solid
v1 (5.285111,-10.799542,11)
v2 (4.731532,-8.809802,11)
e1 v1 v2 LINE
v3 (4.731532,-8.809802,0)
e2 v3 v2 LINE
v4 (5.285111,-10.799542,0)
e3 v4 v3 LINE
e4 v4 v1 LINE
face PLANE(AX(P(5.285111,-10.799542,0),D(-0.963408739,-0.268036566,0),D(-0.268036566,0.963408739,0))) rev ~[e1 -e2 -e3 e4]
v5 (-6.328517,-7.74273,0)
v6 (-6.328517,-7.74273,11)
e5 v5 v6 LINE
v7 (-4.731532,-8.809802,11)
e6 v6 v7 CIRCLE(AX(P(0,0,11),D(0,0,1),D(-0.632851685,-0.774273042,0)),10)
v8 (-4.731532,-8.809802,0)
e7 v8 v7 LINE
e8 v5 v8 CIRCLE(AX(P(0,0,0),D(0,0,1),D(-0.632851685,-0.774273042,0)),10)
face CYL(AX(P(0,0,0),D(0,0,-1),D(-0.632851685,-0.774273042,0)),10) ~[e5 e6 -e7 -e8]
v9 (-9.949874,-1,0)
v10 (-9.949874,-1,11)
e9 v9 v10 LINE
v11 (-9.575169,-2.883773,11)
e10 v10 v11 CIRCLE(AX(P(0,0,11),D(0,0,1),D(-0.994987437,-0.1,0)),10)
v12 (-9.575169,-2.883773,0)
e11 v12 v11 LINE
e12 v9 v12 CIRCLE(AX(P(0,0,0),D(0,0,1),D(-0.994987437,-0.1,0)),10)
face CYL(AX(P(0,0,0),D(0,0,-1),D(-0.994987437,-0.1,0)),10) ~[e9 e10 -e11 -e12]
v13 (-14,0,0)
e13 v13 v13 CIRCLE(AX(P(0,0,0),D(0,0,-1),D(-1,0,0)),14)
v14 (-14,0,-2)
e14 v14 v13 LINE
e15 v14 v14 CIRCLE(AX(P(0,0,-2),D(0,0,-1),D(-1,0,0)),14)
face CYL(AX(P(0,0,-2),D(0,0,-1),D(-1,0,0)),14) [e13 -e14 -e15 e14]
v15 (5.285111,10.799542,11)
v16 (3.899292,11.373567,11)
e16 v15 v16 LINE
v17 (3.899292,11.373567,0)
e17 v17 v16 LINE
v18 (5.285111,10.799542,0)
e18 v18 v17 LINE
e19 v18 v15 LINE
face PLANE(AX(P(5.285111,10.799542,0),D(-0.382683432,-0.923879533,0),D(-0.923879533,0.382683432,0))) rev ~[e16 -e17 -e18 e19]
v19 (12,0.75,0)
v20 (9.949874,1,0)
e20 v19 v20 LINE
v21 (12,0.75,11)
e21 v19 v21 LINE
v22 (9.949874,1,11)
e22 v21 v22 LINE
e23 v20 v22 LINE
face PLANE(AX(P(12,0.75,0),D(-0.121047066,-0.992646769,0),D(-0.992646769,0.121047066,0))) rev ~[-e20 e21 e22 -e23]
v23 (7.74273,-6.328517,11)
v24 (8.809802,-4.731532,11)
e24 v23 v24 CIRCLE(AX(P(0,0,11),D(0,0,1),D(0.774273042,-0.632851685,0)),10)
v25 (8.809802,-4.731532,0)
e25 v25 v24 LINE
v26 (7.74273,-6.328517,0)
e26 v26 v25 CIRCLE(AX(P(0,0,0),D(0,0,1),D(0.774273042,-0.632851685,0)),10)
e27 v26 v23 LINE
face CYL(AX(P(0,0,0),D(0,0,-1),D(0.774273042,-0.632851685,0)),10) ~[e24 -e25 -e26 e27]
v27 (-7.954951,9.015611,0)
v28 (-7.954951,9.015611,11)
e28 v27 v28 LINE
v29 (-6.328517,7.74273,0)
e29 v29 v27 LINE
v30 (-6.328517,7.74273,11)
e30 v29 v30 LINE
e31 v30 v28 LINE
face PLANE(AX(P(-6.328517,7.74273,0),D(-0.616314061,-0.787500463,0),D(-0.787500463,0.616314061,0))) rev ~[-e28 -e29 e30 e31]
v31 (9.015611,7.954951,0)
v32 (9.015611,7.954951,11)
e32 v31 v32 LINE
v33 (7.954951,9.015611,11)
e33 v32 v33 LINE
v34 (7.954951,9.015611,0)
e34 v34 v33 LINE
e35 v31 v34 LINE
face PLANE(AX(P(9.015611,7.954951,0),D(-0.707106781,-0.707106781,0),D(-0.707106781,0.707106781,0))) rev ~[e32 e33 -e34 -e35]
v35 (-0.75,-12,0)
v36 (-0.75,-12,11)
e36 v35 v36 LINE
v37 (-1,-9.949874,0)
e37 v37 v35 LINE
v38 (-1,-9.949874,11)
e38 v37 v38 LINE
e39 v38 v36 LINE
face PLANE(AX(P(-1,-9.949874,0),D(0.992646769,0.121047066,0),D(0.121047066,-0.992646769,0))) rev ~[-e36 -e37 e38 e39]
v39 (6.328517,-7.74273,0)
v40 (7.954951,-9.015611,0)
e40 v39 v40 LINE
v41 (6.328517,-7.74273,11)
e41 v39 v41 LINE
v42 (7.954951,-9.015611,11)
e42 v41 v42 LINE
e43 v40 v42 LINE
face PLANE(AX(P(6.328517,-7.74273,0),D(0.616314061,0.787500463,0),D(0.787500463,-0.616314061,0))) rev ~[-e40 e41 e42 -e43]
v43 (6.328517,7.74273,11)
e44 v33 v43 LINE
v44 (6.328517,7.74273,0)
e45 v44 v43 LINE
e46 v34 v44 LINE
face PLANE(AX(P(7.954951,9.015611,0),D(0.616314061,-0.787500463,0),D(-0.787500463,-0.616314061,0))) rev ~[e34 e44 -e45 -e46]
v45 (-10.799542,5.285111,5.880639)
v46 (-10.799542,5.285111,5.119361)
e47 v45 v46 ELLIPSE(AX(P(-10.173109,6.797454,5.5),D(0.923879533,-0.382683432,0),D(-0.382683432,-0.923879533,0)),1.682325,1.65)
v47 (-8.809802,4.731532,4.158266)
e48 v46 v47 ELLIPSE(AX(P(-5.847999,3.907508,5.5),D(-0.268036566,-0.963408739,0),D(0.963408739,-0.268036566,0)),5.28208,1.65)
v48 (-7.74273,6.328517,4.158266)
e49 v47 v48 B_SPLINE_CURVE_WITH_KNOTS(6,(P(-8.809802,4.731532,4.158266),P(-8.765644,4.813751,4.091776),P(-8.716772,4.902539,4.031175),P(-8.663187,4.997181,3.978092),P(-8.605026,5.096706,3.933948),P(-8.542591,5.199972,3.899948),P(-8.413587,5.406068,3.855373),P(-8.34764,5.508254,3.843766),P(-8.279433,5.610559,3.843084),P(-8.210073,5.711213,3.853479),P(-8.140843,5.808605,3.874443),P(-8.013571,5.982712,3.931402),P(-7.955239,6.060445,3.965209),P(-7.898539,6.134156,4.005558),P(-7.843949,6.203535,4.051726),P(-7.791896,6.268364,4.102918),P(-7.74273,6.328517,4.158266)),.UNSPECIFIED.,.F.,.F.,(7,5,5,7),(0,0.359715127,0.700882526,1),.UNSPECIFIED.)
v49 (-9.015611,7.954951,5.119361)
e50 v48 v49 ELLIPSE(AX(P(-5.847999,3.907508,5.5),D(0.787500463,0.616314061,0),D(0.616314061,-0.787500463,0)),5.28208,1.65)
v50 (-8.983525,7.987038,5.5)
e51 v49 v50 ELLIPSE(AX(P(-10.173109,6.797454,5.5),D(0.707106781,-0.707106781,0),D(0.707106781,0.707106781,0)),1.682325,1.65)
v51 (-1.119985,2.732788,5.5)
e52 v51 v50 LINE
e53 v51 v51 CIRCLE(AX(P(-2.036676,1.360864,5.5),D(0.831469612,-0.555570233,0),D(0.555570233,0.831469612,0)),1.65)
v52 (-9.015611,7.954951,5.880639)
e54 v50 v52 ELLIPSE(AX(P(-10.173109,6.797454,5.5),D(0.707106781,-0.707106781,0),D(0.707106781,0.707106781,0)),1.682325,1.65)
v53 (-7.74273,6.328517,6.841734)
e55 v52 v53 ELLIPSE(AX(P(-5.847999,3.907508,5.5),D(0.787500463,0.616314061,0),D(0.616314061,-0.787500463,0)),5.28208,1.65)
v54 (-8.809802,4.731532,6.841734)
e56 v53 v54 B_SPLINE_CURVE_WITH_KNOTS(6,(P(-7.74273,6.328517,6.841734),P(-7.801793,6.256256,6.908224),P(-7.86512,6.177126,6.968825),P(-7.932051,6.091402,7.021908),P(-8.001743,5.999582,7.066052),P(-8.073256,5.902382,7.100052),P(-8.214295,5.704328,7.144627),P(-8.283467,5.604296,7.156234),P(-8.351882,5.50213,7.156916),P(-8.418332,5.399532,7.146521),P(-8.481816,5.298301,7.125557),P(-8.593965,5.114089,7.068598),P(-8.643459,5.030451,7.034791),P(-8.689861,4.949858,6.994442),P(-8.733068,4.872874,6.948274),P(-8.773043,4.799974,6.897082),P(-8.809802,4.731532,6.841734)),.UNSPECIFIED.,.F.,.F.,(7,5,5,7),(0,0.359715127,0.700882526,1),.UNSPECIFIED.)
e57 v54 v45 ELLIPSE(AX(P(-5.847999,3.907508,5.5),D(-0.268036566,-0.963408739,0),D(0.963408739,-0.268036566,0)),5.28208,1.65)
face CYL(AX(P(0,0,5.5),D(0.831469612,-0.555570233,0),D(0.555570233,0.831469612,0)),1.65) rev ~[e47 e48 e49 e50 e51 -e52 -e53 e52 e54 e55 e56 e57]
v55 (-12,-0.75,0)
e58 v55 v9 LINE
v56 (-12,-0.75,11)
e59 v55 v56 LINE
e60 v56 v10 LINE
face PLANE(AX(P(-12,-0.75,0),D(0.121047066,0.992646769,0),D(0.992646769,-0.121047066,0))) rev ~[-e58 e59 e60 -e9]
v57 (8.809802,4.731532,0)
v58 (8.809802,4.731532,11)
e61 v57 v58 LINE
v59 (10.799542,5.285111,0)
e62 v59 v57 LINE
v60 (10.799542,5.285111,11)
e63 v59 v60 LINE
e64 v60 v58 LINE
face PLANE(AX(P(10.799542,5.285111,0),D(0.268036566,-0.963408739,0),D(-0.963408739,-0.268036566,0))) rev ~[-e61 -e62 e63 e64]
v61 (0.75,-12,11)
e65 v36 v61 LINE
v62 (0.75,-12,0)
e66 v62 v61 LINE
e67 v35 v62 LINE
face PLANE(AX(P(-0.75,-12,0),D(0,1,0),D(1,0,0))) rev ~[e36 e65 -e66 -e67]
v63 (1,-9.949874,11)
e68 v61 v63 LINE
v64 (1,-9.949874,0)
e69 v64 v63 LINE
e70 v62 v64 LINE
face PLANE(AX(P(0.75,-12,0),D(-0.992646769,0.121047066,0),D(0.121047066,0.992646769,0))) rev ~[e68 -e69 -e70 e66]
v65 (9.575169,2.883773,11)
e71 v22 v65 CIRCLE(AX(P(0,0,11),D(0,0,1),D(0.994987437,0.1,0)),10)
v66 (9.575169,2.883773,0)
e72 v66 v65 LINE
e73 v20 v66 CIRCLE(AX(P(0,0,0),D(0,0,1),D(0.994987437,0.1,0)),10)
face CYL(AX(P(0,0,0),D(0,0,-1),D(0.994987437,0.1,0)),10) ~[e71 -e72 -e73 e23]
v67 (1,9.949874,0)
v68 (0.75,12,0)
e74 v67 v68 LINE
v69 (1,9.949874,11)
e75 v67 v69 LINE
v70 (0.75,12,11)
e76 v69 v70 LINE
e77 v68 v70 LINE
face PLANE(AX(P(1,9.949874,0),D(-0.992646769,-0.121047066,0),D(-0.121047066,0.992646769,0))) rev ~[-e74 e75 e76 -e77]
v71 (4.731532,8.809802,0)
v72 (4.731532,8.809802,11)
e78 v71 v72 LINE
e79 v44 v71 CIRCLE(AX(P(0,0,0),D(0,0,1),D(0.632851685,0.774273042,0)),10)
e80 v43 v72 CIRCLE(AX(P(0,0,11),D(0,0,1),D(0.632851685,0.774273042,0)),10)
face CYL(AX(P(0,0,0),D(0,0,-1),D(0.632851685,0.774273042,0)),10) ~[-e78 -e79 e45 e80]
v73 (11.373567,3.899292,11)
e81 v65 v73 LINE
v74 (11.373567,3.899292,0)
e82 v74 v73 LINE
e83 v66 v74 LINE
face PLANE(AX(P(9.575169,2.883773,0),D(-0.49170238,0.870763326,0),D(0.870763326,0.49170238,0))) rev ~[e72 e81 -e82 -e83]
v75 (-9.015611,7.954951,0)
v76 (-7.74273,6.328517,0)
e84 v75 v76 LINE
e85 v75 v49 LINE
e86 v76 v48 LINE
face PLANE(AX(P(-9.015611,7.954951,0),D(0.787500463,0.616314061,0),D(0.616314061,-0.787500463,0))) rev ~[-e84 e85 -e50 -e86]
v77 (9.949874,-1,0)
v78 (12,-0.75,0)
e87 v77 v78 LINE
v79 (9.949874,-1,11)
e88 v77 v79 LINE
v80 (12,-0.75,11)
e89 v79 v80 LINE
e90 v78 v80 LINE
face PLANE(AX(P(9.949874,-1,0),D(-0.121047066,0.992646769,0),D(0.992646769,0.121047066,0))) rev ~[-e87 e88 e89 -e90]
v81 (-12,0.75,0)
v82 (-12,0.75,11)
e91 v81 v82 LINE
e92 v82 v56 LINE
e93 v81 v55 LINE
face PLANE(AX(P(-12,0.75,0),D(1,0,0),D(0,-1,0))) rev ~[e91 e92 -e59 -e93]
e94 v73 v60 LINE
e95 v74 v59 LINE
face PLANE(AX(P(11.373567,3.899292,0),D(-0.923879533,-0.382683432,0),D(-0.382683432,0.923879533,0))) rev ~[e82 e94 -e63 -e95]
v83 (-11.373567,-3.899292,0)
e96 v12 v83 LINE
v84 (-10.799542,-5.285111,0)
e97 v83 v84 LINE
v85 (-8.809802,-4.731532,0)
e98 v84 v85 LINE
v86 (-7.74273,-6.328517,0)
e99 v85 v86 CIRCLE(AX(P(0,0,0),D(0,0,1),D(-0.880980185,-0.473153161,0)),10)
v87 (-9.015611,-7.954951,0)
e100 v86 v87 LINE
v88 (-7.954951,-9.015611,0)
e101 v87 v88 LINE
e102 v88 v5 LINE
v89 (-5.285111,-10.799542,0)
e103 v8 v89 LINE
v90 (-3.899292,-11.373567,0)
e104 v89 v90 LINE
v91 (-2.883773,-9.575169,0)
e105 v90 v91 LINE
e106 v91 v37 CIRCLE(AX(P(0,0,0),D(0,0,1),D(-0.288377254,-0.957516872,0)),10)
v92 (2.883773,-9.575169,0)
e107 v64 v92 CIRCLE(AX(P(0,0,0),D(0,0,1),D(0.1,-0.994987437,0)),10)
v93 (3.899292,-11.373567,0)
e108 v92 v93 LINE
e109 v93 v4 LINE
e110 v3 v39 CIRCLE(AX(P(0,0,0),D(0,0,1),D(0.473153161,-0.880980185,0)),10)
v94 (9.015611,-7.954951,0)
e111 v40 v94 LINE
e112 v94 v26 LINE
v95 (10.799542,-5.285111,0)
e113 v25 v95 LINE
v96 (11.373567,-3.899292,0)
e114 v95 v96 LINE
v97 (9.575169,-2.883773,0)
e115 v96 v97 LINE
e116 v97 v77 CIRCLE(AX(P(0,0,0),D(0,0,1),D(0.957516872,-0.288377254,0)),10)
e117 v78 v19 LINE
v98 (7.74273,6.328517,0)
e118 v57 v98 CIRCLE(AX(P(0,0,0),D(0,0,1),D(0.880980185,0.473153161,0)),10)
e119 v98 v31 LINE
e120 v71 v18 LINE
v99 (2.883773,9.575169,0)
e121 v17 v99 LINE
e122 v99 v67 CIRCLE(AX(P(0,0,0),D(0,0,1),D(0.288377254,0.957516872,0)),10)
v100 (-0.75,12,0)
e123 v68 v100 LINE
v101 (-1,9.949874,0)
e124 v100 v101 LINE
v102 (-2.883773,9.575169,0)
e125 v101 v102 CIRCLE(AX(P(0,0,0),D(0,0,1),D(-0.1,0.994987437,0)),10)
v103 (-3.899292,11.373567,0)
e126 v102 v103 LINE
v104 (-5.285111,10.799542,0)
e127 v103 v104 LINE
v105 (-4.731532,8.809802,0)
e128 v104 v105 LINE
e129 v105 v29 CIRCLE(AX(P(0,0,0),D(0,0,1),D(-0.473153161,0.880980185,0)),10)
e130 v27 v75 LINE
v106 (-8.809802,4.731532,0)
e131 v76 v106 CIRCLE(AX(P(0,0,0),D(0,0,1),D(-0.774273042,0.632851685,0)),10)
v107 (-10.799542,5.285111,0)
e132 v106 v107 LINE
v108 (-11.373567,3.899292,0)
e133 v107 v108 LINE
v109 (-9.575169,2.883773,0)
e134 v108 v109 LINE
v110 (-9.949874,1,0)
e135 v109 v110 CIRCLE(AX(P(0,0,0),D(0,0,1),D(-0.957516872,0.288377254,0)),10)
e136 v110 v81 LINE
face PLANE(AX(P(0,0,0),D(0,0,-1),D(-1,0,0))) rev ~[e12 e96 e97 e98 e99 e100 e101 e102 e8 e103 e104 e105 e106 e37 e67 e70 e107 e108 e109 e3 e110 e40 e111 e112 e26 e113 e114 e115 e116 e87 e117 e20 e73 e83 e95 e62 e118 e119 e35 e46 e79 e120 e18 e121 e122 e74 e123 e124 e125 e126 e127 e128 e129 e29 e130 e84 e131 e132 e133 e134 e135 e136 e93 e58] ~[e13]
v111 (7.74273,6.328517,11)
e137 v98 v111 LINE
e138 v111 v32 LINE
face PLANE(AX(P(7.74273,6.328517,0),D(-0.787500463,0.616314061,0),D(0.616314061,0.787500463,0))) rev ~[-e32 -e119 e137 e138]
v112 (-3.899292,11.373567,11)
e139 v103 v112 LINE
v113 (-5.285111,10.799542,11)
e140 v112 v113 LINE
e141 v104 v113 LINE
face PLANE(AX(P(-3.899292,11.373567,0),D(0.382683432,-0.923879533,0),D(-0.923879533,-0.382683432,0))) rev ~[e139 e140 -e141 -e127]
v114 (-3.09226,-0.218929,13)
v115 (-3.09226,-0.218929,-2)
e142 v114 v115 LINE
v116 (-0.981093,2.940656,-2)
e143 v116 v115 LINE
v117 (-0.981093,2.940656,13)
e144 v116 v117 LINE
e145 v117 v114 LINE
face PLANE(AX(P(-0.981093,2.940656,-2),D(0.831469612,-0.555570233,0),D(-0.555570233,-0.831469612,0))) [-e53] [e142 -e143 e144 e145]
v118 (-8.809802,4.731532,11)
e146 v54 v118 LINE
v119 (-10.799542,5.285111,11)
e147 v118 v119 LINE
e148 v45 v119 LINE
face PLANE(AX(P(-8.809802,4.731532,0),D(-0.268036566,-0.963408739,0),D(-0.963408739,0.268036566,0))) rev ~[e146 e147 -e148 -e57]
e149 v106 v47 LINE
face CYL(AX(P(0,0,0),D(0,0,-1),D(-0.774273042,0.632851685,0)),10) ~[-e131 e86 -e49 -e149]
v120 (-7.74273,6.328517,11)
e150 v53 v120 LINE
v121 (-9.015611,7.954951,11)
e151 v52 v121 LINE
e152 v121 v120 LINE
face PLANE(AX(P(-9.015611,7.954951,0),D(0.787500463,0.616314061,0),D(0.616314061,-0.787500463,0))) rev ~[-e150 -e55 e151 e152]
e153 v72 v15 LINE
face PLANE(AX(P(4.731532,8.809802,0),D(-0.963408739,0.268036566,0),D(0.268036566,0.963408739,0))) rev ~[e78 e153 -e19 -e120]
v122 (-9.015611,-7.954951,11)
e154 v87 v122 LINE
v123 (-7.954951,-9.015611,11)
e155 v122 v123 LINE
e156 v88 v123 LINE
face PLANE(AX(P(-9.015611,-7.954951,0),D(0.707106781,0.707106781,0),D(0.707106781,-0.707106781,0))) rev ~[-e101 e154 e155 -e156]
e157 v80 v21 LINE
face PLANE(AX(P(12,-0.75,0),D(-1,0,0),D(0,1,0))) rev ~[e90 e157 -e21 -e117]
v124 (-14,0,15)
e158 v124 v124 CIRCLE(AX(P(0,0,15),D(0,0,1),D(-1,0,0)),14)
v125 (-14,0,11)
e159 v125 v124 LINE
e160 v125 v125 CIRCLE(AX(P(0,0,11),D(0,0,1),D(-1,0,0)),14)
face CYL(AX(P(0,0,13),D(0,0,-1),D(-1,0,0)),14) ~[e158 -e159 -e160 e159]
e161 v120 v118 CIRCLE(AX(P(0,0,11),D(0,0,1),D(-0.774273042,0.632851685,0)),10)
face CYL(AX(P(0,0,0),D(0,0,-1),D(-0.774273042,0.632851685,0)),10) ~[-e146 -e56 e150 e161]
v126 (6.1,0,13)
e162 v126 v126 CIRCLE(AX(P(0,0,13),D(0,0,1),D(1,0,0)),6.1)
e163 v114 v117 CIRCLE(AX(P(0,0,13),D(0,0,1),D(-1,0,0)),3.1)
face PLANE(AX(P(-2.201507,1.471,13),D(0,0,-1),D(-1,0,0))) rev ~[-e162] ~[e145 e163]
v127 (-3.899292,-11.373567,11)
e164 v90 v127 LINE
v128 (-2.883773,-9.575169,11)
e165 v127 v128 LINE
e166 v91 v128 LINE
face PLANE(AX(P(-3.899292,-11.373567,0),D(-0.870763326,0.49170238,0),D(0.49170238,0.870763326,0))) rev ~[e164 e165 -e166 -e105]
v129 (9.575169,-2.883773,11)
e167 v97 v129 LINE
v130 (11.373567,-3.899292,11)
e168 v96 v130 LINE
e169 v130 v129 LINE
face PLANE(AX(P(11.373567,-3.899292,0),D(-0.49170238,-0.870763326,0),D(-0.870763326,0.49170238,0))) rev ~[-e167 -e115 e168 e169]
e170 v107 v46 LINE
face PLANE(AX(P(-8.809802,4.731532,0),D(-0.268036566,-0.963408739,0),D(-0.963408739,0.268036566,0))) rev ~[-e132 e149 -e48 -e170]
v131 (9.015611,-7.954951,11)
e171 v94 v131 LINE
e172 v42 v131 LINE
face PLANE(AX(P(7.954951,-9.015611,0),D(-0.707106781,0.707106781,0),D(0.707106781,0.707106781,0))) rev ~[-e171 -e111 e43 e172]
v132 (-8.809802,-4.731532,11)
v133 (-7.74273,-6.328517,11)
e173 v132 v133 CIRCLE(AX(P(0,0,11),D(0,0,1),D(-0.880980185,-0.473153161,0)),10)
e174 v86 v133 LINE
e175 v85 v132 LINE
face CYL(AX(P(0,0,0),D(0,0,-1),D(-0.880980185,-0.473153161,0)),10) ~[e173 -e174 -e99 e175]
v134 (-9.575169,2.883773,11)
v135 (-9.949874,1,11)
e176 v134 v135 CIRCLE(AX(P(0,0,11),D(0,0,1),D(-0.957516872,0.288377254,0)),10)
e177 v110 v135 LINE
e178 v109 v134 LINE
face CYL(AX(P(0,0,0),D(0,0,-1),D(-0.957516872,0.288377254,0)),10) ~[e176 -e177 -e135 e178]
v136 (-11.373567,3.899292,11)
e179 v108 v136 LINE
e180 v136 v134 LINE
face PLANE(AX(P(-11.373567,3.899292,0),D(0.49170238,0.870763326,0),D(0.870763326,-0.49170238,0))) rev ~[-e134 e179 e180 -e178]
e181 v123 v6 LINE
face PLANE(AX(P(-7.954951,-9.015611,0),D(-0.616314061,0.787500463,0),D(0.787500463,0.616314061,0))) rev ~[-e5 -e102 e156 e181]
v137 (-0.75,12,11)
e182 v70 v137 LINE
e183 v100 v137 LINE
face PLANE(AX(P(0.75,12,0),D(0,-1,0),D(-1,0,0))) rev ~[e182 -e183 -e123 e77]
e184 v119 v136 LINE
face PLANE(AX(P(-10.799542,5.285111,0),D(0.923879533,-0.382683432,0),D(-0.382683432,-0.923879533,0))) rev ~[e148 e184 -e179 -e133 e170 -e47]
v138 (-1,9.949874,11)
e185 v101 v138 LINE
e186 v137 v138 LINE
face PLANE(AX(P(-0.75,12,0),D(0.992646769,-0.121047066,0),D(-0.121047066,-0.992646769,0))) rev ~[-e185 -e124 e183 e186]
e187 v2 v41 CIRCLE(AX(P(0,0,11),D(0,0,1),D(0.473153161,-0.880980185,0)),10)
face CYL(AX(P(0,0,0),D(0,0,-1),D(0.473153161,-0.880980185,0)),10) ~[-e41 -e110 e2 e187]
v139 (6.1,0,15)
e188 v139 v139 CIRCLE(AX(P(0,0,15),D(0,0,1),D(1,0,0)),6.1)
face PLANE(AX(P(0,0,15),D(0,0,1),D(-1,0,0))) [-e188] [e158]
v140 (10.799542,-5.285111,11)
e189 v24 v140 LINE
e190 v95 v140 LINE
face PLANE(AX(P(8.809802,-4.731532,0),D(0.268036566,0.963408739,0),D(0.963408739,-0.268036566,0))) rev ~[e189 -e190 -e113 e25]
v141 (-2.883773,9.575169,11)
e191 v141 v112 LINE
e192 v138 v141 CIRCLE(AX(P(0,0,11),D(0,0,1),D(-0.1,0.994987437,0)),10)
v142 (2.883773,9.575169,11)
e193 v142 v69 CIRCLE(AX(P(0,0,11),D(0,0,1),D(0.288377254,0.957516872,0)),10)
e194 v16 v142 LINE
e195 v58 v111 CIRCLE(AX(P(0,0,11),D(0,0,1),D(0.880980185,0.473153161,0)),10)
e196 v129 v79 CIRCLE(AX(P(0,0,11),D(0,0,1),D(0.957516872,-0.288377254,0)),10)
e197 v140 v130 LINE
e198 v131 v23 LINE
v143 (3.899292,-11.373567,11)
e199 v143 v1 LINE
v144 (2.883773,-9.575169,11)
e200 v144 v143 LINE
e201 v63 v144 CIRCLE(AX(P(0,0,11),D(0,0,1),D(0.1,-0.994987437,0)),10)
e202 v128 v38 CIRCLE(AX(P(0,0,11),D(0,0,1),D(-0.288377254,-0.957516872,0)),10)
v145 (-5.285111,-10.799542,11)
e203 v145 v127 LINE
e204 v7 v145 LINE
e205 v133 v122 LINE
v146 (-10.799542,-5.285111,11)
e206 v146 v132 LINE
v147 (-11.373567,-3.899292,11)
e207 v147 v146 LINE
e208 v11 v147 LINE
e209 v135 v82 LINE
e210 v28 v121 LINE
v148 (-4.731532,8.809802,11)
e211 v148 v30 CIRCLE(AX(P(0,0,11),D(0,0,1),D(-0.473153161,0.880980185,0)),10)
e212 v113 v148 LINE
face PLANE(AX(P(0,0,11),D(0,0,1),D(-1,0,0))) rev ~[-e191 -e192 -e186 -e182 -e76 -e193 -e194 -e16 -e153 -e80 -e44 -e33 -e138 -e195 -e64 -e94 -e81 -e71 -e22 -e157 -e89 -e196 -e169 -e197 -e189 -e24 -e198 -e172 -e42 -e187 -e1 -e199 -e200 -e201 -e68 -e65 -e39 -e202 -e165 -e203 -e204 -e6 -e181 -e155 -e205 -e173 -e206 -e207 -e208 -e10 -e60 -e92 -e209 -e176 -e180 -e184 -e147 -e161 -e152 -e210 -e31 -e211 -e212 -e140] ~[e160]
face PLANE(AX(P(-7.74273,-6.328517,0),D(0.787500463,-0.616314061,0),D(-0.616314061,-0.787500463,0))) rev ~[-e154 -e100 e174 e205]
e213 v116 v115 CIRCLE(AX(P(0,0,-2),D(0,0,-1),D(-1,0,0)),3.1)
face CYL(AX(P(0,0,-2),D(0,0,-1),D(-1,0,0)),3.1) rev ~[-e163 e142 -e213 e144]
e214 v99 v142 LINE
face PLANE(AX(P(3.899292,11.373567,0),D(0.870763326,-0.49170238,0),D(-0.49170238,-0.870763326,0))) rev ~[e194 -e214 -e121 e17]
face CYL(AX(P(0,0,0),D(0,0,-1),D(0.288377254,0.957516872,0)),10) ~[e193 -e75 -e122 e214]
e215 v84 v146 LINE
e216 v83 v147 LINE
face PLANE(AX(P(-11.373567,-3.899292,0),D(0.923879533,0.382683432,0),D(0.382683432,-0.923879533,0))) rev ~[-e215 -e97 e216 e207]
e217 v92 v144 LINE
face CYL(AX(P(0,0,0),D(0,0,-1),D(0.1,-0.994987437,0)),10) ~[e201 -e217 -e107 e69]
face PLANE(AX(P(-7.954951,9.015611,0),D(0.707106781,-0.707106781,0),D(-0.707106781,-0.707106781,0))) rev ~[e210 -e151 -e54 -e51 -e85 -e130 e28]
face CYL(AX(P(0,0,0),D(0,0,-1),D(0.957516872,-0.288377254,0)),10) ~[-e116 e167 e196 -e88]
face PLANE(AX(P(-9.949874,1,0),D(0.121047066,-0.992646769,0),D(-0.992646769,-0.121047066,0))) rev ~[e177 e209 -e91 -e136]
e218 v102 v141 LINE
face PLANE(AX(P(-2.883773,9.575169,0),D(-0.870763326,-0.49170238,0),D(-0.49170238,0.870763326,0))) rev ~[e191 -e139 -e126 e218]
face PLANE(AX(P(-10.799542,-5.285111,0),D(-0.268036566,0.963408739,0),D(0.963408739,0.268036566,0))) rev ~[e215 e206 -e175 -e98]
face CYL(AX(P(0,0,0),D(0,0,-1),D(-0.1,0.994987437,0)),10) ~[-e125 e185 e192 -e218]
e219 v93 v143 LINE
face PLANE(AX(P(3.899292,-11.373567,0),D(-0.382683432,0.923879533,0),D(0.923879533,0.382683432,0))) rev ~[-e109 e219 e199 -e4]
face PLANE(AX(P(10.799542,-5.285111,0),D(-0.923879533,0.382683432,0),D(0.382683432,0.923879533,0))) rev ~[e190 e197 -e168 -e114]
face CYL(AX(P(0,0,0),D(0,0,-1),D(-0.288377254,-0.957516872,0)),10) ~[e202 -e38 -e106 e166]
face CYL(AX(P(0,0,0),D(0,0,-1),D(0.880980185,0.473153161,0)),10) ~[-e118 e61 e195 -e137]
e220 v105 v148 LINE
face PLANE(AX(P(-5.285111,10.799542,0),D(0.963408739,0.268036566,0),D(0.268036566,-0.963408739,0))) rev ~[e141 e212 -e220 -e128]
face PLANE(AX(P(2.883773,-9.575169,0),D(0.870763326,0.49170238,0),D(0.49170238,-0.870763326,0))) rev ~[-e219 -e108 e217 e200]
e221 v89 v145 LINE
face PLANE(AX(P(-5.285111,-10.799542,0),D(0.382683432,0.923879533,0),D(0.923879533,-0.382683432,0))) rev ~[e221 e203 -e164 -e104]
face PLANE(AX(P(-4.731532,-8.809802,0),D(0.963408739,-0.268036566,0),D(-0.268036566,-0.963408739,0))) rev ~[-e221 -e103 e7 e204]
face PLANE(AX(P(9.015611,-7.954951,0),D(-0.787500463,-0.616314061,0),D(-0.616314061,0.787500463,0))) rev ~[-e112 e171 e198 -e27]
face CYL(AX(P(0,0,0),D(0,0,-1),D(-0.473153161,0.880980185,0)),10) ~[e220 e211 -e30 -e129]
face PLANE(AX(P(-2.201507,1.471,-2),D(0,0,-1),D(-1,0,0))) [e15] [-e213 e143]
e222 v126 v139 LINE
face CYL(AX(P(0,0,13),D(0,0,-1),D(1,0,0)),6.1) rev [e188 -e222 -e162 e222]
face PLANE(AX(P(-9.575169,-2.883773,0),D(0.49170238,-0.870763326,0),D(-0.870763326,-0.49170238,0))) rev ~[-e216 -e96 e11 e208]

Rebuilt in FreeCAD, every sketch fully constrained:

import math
import FreeCAD as App
import Part
import Sketcher

V = App.Vector
Q = App.Units.Quantity

doc = App.newDocument("Part")
params = doc.addObject("Spreadsheet::Sheet", "Params")
for row, (alias, value) in enumerate([
    ("sketch1_radius", "10 mm"),
    ("sketch1_diameter", "6.2 mm"),
    ("sketch1_width", "1.5 mm"),
    ("sketch1_length", "1.5 mm"),
    ("pad1_length", "11 mm"),
    ("sketch2_diameter", "28 mm"),
    ("sketch2_diameter2", "6.2 mm"),
    ("pad2_length", "2 mm"),
    ("sketch3_diameter", "28 mm"),
    ("sketch3_diameter2", "6.2 mm"),
    ("pad3_length", "2 mm"),
    ("sketch4_diameter", "28 mm"),
    ("sketch4_diameter2", "12.2 mm"),
    ("pad4_length", "2 mm"),
    ("sketch5_radius", "3.1 mm"),
    ("sketch5_length", "3.8 mm"),
    ("pad5_length", "15 mm"),
    ("sketch6_diameter", "3.3 mm"),
], start=1):
    params.set(f"A{row}", alias)
    params.set(f"B{row}", "=" + value)
    params.setAlias(f"B{row}", alias)

body = doc.addObject("PartDesign::Body", "Body")

# Sketch on XY plane
sketch1 = body.newObject("Sketcher::SketchObject", "Sketch")
sketch1.AttachmentSupport = (doc.getObject("XY_Plane"), [""])
sketch1.MapMode = "FlatFace"
sketch1.addGeometry([
    Part.LineSegment(V(-2.9, 9.6, 0), V(-3.9, 11.4, 0)),  # 0
    Part.LineSegment(V(-3.9, 11.4, 0), V(-5.3, 10.8, 0)),  # 1
    Part.LineSegment(V(-5.3, 10.8, 0), V(-4.7, 8.8, 0)),  # 2
    Part.ArcOfCircle(Part.Circle(V(0, 0, 0), V(0, 0, 1), 10), math.radians(118.24), math.radians(129.26)),  # 3
    Part.LineSegment(V(-6.3, 7.7, 0), V(-8, 9, 0)),  # 4
    Part.LineSegment(V(-8, 9, 0), V(-9, 8, 0)),  # 5
    Part.LineSegment(V(-9, 8, 0), V(-7.7, 6.3, 0)),  # 6
    Part.ArcOfCircle(Part.Circle(V(0, 0, 0), V(0, 0, 1), 10), math.radians(140.74), math.radians(151.76)),  # 7
    Part.LineSegment(V(-8.8, 4.7, 0), V(-10.8, 5.3, 0)),  # 8
    Part.LineSegment(V(-10.8, 5.3, 0), V(-11.4, 3.9, 0)),  # 9
    Part.LineSegment(V(-11.4, 3.9, 0), V(-9.6, 2.9, 0)),  # 10
    Part.ArcOfCircle(Part.Circle(V(0, 0, 0), V(0, 0, 1), 10), math.radians(163.24), math.radians(174.26)),  # 11
    Part.LineSegment(V(-9.9, 1, 0), V(-12, 0.8, 0)),  # 12
    Part.LineSegment(V(-12, 0.8, 0), V(-12, -0.8, 0)),  # 13
    Part.LineSegment(V(-12, -0.8, 0), V(-9.9, -1, 0)),  # 14
    Part.ArcOfCircle(Part.Circle(V(0, 0, 0), V(0, 0, 1), 10), math.radians(-174.26), math.radians(-163.24)),  # 15
    Part.LineSegment(V(-9.6, -2.9, 0), V(-11.4, -3.9, 0)),  # 16
    Part.LineSegment(V(-11.4, -3.9, 0), V(-10.8, -5.3, 0)),  # 17
    Part.LineSegment(V(-10.8, -5.3, 0), V(-8.8, -4.7, 0)),  # 18
    Part.ArcOfCircle(Part.Circle(V(0, 0, 0), V(0, 0, 1), 10), math.radians(-151.76), math.radians(-140.74)),  # 19
    Part.LineSegment(V(-7.7, -6.3, 0), V(-9, -8, 0)),  # 20
    Part.LineSegment(V(-9, -8, 0), V(-8, -9, 0)),  # 21
    Part.LineSegment(V(-8, -9, 0), V(-6.3, -7.7, 0)),  # 22
    Part.ArcOfCircle(Part.Circle(V(0, 0, 0), V(0, 0, 1), 10), math.radians(-129.26), math.radians(-118.24)),  # 23
    Part.LineSegment(V(-4.7, -8.8, 0), V(-5.3, -10.8, 0)),  # 24
    Part.LineSegment(V(-5.3, -10.8, 0), V(-3.9, -11.4, 0)),  # 25
    Part.LineSegment(V(-3.9, -11.4, 0), V(-2.9, -9.6, 0)),  # 26
    Part.ArcOfCircle(Part.Circle(V(0, 0, 0), V(0, 0, 1), 10), math.radians(-106.76), math.radians(-95.74)),  # 27
    Part.LineSegment(V(-1, -9.9, 0), V(-0.8, -12, 0)),  # 28
    Part.LineSegment(V(-0.8, -12, 0), V(0.8, -12, 0)),  # 29
    Part.LineSegment(V(0.8, -12, 0), V(1, -9.9, 0)),  # 30
    Part.ArcOfCircle(Part.Circle(V(0, 0, 0), V(0, 0, 1), 10), math.radians(-84.26), math.radians(-73.24)),  # 31
    Part.LineSegment(V(2.9, -9.6, 0), V(3.9, -11.4, 0)),  # 32
    Part.LineSegment(V(3.9, -11.4, 0), V(5.3, -10.8, 0)),  # 33
    Part.LineSegment(V(5.3, -10.8, 0), V(4.7, -8.8, 0)),  # 34
    Part.ArcOfCircle(Part.Circle(V(0, 0, 0), V(0, 0, 1), 10), math.radians(-61.76), math.radians(-50.74)),  # 35
    Part.LineSegment(V(6.3, -7.7, 0), V(8, -9, 0)),  # 36
    Part.LineSegment(V(8, -9, 0), V(9, -8, 0)),  # 37
    Part.LineSegment(V(9, -8, 0), V(7.7, -6.3, 0)),  # 38
    Part.ArcOfCircle(Part.Circle(V(0, 0, 0), V(0, 0, 1), 10), math.radians(-39.26), math.radians(-28.24)),  # 39
    Part.LineSegment(V(8.8, -4.7, 0), V(10.8, -5.3, 0)),  # 40
    Part.LineSegment(V(10.8, -5.3, 0), V(11.4, -3.9, 0)),  # 41
    Part.LineSegment(V(11.4, -3.9, 0), V(9.6, -2.9, 0)),  # 42
    Part.ArcOfCircle(Part.Circle(V(0, 0, 0), V(0, 0, 1), 10), math.radians(-16.76), math.radians(-5.74)),  # 43
    Part.LineSegment(V(9.9, -1, 0), V(12, -0.8, 0)),  # 44
    Part.LineSegment(V(12, -0.8, 0), V(12, 0.8, 0)),  # 45
    Part.LineSegment(V(12, 0.8, 0), V(9.9, 1, 0)),  # 46
    Part.ArcOfCircle(Part.Circle(V(0, 0, 0), V(0, 0, 1), 10), math.radians(5.74), math.radians(16.76)),  # 47
    Part.LineSegment(V(9.6, 2.9, 0), V(11.4, 3.9, 0)),  # 48
    Part.LineSegment(V(11.4, 3.9, 0), V(10.8, 5.3, 0)),  # 49
    Part.LineSegment(V(10.8, 5.3, 0), V(8.8, 4.7, 0)),  # 50
    Part.ArcOfCircle(Part.Circle(V(0, 0, 0), V(0, 0, 1), 10), math.radians(28.24), math.radians(39.26)),  # 51
    Part.LineSegment(V(7.7, 6.3, 0), V(9, 8, 0)),  # 52
    Part.LineSegment(V(9, 8, 0), V(8, 9, 0)),  # 53
    Part.LineSegment(V(8, 9, 0), V(6.3, 7.7, 0)),  # 54
    Part.ArcOfCircle(Part.Circle(V(0, 0, 0), V(0, 0, 1), 10), math.radians(50.74), math.radians(61.76)),  # 55
    Part.LineSegment(V(4.7, 8.8, 0), V(5.3, 10.8, 0)),  # 56
    Part.LineSegment(V(5.3, 10.8, 0), V(3.9, 11.4, 0)),  # 57
    Part.LineSegment(V(3.9, 11.4, 0), V(2.9, 9.6, 0)),  # 58
    Part.ArcOfCircle(Part.Circle(V(0, 0, 0), V(0, 0, 1), 10), math.radians(73.24), math.radians(84.26)),  # 59
    Part.LineSegment(V(1, 9.9, 0), V(0.8, 12, 0)),  # 60
    Part.LineSegment(V(0.8, 12, 0), V(-0.8, 12, 0)),  # 61
    Part.LineSegment(V(-0.8, 12, 0), V(-1, 9.9, 0)),  # 62
    Part.ArcOfCircle(Part.Circle(V(0, 0, 0), V(0, 0, 1), 10), math.radians(95.74), math.radians(106.76)),  # 63
    Part.Circle(V(0, 0, 0), V(0, 0, 1), 3.1),  # 64
], False)
sketch1.addConstraint([
    Sketcher.Constraint("Coincident", 0, 2, 1, 1),
    Sketcher.Constraint("Coincident", 1, 2, 2, 1),
    Sketcher.Constraint("Coincident", 2, 2, 3, 1),
    Sketcher.Constraint("Coincident", 3, 2, 4, 1),
    Sketcher.Constraint("Coincident", 4, 2, 5, 1),
    Sketcher.Constraint("Coincident", 5, 2, 6, 1),
    Sketcher.Constraint("Coincident", 6, 2, 7, 1),
    Sketcher.Constraint("Coincident", 7, 2, 8, 1),
    Sketcher.Constraint("Coincident", 8, 2, 9, 1),
    Sketcher.Constraint("Coincident", 9, 2, 10, 1),
    Sketcher.Constraint("Coincident", 10, 2, 11, 1),
    Sketcher.Constraint("Coincident", 11, 2, 12, 1),
    Sketcher.Constraint("Coincident", 12, 2, 13, 1),
    Sketcher.Constraint("Coincident", 13, 2, 14, 1),
    Sketcher.Constraint("Coincident", 14, 2, 15, 1),
    Sketcher.Constraint("Coincident", 15, 2, 16, 1),
    Sketcher.Constraint("Coincident", 16, 2, 17, 1),
    Sketcher.Constraint("Coincident", 17, 2, 18, 1),
    Sketcher.Constraint("Coincident", 18, 2, 19, 1),
    Sketcher.Constraint("Coincident", 19, 2, 20, 1),
    Sketcher.Constraint("Coincident", 20, 2, 21, 1),
    Sketcher.Constraint("Coincident", 21, 2, 22, 1),
    Sketcher.Constraint("Coincident", 22, 2, 23, 1),
    Sketcher.Constraint("Coincident", 23, 2, 24, 1),
    Sketcher.Constraint("Coincident", 24, 2, 25, 1),
    Sketcher.Constraint("Coincident", 25, 2, 26, 1),
    Sketcher.Constraint("Coincident", 26, 2, 27, 1),
    Sketcher.Constraint("Coincident", 27, 2, 28, 1),
    Sketcher.Constraint("Coincident", 28, 2, 29, 1),
    Sketcher.Constraint("Coincident", 29, 2, 30, 1),
    Sketcher.Constraint("Coincident", 30, 2, 31, 1),
    Sketcher.Constraint("Coincident", 31, 2, 32, 1),
    Sketcher.Constraint("Coincident", 32, 2, 33, 1),
    Sketcher.Constraint("Coincident", 33, 2, 34, 1),
    Sketcher.Constraint("Coincident", 34, 2, 35, 1),
    Sketcher.Constraint("Coincident", 35, 2, 36, 1),
    Sketcher.Constraint("Coincident", 36, 2, 37, 1),
    Sketcher.Constraint("Coincident", 37, 2, 38, 1),
    Sketcher.Constraint("Coincident", 38, 2, 39, 1),
    Sketcher.Constraint("Coincident", 39, 2, 40, 1),
    Sketcher.Constraint("Coincident", 40, 2, 41, 1),
    Sketcher.Constraint("Coincident", 41, 2, 42, 1),
    Sketcher.Constraint("Coincident", 42, 2, 43, 1),
    Sketcher.Constraint("Coincident", 43, 2, 44, 1),
    Sketcher.Constraint("Coincident", 44, 2, 45, 1),
    Sketcher.Constraint("Coincident", 45, 2, 46, 1),
    Sketcher.Constraint("Coincident", 46, 2, 47, 1),
    Sketcher.Constraint("Coincident", 47, 2, 48, 1),
    Sketcher.Constraint("Coincident", 48, 2, 49, 1),
    Sketcher.Constraint("Coincident", 49, 2, 50, 1),
    Sketcher.Constraint("Coincident", 50, 2, 51, 1),
    Sketcher.Constraint("Coincident", 51, 2, 52, 1),
    Sketcher.Constraint("Coincident", 52, 2, 53, 1),
    Sketcher.Constraint("Coincident", 53, 2, 54, 1),
    Sketcher.Constraint("Coincident", 54, 2, 55, 1),
    Sketcher.Constraint("Coincident", 55, 2, 56, 1),
    Sketcher.Constraint("Coincident", 56, 2, 57, 1),
    Sketcher.Constraint("Coincident", 57, 2, 58, 1),
    Sketcher.Constraint("Coincident", 58, 2, 59, 1),
    Sketcher.Constraint("Coincident", 59, 2, 60, 1),
    Sketcher.Constraint("Coincident", 60, 2, 61, 1),
    Sketcher.Constraint("Coincident", 61, 2, 62, 1),
    Sketcher.Constraint("Coincident", 62, 2, 63, 1),
    Sketcher.Constraint("Coincident", 63, 2, 0, 1),
    Sketcher.Constraint("Vertical", 13),
    Sketcher.Constraint("Horizontal", 29),
    Sketcher.Constraint("Vertical", 45),
    Sketcher.Constraint("Horizontal", 61),
    Sketcher.Constraint("Coincident", 3, 3, -1, 1),
    Sketcher.Constraint("Coincident", 7, 3, -1, 1),
    Sketcher.Constraint("Coincident", 11, 3, -1, 1),
    Sketcher.Constraint("Coincident", 15, 3, -1, 1),
    Sketcher.Constraint("Coincident", 19, 3, -1, 1),
    Sketcher.Constraint("Coincident", 23, 3, -1, 1),
    Sketcher.Constraint("Coincident", 27, 3, -1, 1),
    Sketcher.Constraint("Coincident", 31, 3, -1, 1),
    Sketcher.Constraint("Coincident", 35, 3, -1, 1),
    Sketcher.Constraint("Coincident", 39, 3, -1, 1),
    Sketcher.Constraint("Coincident", 43, 3, -1, 1),
    Sketcher.Constraint("Coincident", 47, 3, -1, 1),
    Sketcher.Constraint("Coincident", 51, 3, -1, 1),
    Sketcher.Constraint("Coincident", 55, 3, -1, 1),
    Sketcher.Constraint("Coincident", 59, 3, -1, 1),
    Sketcher.Constraint("Coincident", 63, 3, -1, 1),
    Sketcher.Constraint("Coincident", 64, 3, -1, 1),
    Sketcher.Constraint("Equal", 3, 7),
    Sketcher.Constraint("Equal", 7, 11),
    Sketcher.Constraint("Equal", 11, 15),
    Sketcher.Constraint("Equal", 15, 19),
    Sketcher.Constraint("Equal", 19, 23),
    Sketcher.Constraint("Equal", 23, 27),
    Sketcher.Constraint("Equal", 27, 31),
    Sketcher.Constraint("Equal", 31, 35),
    Sketcher.Constraint("Equal", 35, 39),
    Sketcher.Constraint("Equal", 39, 43),
    Sketcher.Constraint("Equal", 43, 47),
    Sketcher.Constraint("Equal", 47, 51),
    Sketcher.Constraint("Equal", 51, 55),
    Sketcher.Constraint("Equal", 55, 59),
    Sketcher.Constraint("Equal", 59, 63),
    Sketcher.Constraint("Symmetric", 0, 2, 32, 2, -1, 1),
    Sketcher.Constraint("Symmetric", 1, 2, 33, 2, -1, 1),
    Sketcher.Constraint("Symmetric", 4, 2, 36, 2, -1, 1),
    Sketcher.Constraint("Symmetric", 5, 2, 37, 2, -1, 1),
    Sketcher.Constraint("Symmetric", 8, 2, 40, 2, -1, 1),
    Sketcher.Constraint("Symmetric", 9, 2, 41, 2, -1, 1),
    Sketcher.Constraint("Symmetric", 12, 2, 44, 2, -1, 1),
    Sketcher.Constraint("Symmetric", 16, 2, 48, 2, -1, 1),
    Sketcher.Constraint("Symmetric", 17, 2, 49, 2, -1, 1),
    Sketcher.Constraint("Symmetric", 20, 2, 52, 2, -1, 1),
    Sketcher.Constraint("Symmetric", 21, 2, 53, 2, -1, 1),
    Sketcher.Constraint("Symmetric", 24, 2, 56, 2, -1, 1),
    Sketcher.Constraint("Symmetric", 25, 2, 57, 2, -1, 1),
    Sketcher.Constraint("Symmetric", 28, 2, 60, 2, -1, 1),
    Sketcher.Constraint("Symmetric", 25, 2, 32, 2, -2),
    Sketcher.Constraint("Symmetric", 24, 2, 33, 2, -2),
    Sketcher.Constraint("Symmetric", 21, 2, 36, 2, -2),
    Sketcher.Constraint("Symmetric", 20, 2, 37, 2, -2),
    Sketcher.Constraint("Symmetric", 17, 2, 40, 2, -2),
    Sketcher.Constraint("Symmetric", 16, 2, 41, 2, -2),
    Sketcher.Constraint("Perpendicular", 0, 16),
    Sketcher.Constraint("Perpendicular", 1, 17),
    Sketcher.Constraint("Perpendicular", 2, 18),
    Sketcher.Constraint("Perpendicular", 4, 20),
    Sketcher.Constraint("Perpendicular", 5, 21),
    Sketcher.Constraint("Perpendicular", 6, 22),
    Sketcher.Constraint("Perpendicular", 8, 24),
    Sketcher.Constraint("Perpendicular", 10, 26),
    Sketcher.Constraint("Perpendicular", 12, 28),
    Sketcher.Constraint("Perpendicular", 14, 30),
    Sketcher.Constraint("Perpendicular", 16, 32),
    Sketcher.Constraint("Perpendicular", 18, 34),
    Sketcher.Constraint("Perpendicular", 20, 36),
    Sketcher.Constraint("Perpendicular", 22, 38),
    Sketcher.Constraint("Perpendicular", 24, 40),
    Sketcher.Constraint("Perpendicular", 26, 42),
    Sketcher.Constraint("Perpendicular", 28, 44),
    Sketcher.Constraint("Perpendicular", 30, 46),
    Sketcher.Constraint("Perpendicular", 32, 48),
    Sketcher.Constraint("Perpendicular", 34, 50),
    Sketcher.Constraint("Perpendicular", 36, 52),
    Sketcher.Constraint("Perpendicular", 38, 54),
    Sketcher.Constraint("Perpendicular", 40, 56),
    Sketcher.Constraint("Perpendicular", 42, 58),
    Sketcher.Constraint("Perpendicular", 44, 60),
    Sketcher.Constraint("Perpendicular", 46, 62),
    Sketcher.Constraint("Horizontal", 27, 2, 30, 2),
    Sketcher.Constraint("Horizontal", 26, 2, 31, 2),
    Sketcher.Constraint("Horizontal", 23, 2, 34, 2),
    Sketcher.Constraint("Horizontal", 22, 2, 35, 2),
    Sketcher.Constraint("Horizontal", 14, 2, 43, 2),
    Sketcher.Constraint("Horizontal", 13, 2, 44, 2),
    Sketcher.Constraint("Horizontal", 12, 2, 45, 2),
    Sketcher.Constraint("Horizontal", 59, 2, 62, 2),
    Sketcher.Constraint("Equal", 61, 13),
    Sketcher.Constraint("Equal", 0, 2),
    Sketcher.Constraint("Equal", 2, 4),
    Sketcher.Constraint("Equal", 1, 5),
    Sketcher.Constraint("Equal", 4, 6),
    Sketcher.Constraint("Equal", 6, 8),
    Sketcher.Constraint("Equal", 5, 9),
    Sketcher.Constraint("Equal", 8, 10),
    Sketcher.Constraint("Equal", 10, 12),
    Sketcher.Constraint("Equal", 26, 28),
    Sketcher.Constraint("Radius", 3, 10.0),
    Sketcher.Constraint("Diameter", 64, 6.2),
    Sketcher.Constraint("DistanceX", 29, 1, 29, 2, 1.5),
    Sketcher.Constraint("DistanceY", -1, 1, 11, 2, 1.0),
    Sketcher.Constraint("DistanceX", 12, 2, -1, 1, 12.0),
    Sketcher.Constraint("Angle", 1, Q("-157.5 deg")),
    Sketcher.Constraint("Distance", 1, 1.5),
    Sketcher.Constraint("DistanceY", -1, 1, 2, 2, 8.809802),
    Sketcher.Constraint("DistanceX", 0, 2, -1, 1, 3.899292),
    Sketcher.Constraint("DistanceY", -1, 1, 3, 2, 7.74273),
])
sketch1.setExpression("Constraints[164]", "Params.sketch1_radius")
sketch1.setExpression("Constraints[165]", "Params.sketch1_diameter")
sketch1.setExpression("Constraints[166]", "Params.sketch1_width")
sketch1.setExpression("Constraints[170]", "Params.sketch1_length")
pad1 = body.newObject("PartDesign::Pad", "Pad")
pad1.Profile = sketch1
pad1.setExpression("Length", "Params.pad1_length")

# Sketch on XY plane
sketch2 = body.newObject("Sketcher::SketchObject", "Sketch001")
sketch2.AttachmentSupport = (doc.getObject("XY_Plane"), [""])
sketch2.MapMode = "FlatFace"
sketch2.AttachmentOffset = App.Placement(V(0, 0, -2), App.Rotation())
sketch2.addGeometry([
    Part.Circle(V(0, 0, 0), V(0, 0, 1), 14),
    Part.Circle(V(0, 0, 0), V(0, 0, 1), 3.1),
], False)
sketch2.addConstraint([
    Sketcher.Constraint("Coincident", 0, 3, -1, 1),
    Sketcher.Constraint("Coincident", 1, 3, -1, 1),
    Sketcher.Constraint("Diameter", 0, 28.0),
    Sketcher.Constraint("Diameter", 1, 6.2),
])
sketch2.setExpression("Constraints[2]", "Params.sketch2_diameter")
sketch2.setExpression("Constraints[3]", "Params.sketch2_diameter2")
pad2 = body.newObject("PartDesign::Pad", "Pad001")
pad2.Profile = sketch2
pad2.setExpression("Length", "Params.pad2_length")

# Sketch on XY plane
sketch3 = body.newObject("Sketcher::SketchObject", "Sketch002")
sketch3.AttachmentSupport = (doc.getObject("XY_Plane"), [""])
sketch3.MapMode = "FlatFace"
sketch3.AttachmentOffset = App.Placement(V(0, 0, 11), App.Rotation())
sketch3.addGeometry([
    Part.Circle(V(0, 0, 0), V(0, 0, 1), 14),
    Part.Circle(V(0, 0, 0), V(0, 0, 1), 3.1),
], False)
sketch3.addConstraint([
    Sketcher.Constraint("Coincident", 0, 3, -1, 1),
    Sketcher.Constraint("Coincident", 1, 3, -1, 1),
    Sketcher.Constraint("Diameter", 0, 28.0),
    Sketcher.Constraint("Diameter", 1, 6.2),
])
sketch3.setExpression("Constraints[2]", "Params.sketch3_diameter")
sketch3.setExpression("Constraints[3]", "Params.sketch3_diameter2")
pad3 = body.newObject("PartDesign::Pad", "Pad002")
pad3.Profile = sketch3
pad3.setExpression("Length", "Params.pad3_length")

# Sketch on XY plane
sketch4 = body.newObject("Sketcher::SketchObject", "Sketch003")
sketch4.AttachmentSupport = (doc.getObject("XY_Plane"), [""])
sketch4.MapMode = "FlatFace"
sketch4.AttachmentOffset = App.Placement(V(0, 0, 13), App.Rotation())
sketch4.addGeometry([
    Part.Circle(V(0, 0, 0), V(0, 0, 1), 14),
    Part.Circle(V(0, 0, 0), V(0, 0, 1), 6),
], False)
sketch4.addConstraint([
    Sketcher.Constraint("Coincident", 0, 3, -1, 1),
    Sketcher.Constraint("Coincident", 1, 3, -1, 1),
    Sketcher.Constraint("Diameter", 0, 28.0),
    Sketcher.Constraint("Diameter", 1, 12.2),
])
sketch4.setExpression("Constraints[2]", "Params.sketch4_diameter")
sketch4.setExpression("Constraints[3]", "Params.sketch4_diameter2")
pad4 = body.newObject("PartDesign::Pad", "Pad003")
pad4.Profile = sketch4
pad4.setExpression("Length", "Params.pad4_length")

# Sketch on XY plane
sketch5 = body.newObject("Sketcher::SketchObject", "Sketch004")
sketch5.AttachmentSupport = (doc.getObject("XY_Plane"), [""])
sketch5.MapMode = "FlatFace"
sketch5.AttachmentOffset = App.Placement(V(0, 0, -2), App.Rotation())
sketch5.addGeometry([
    Part.LineSegment(V(-1, 2.9, 0), V(-3.1, -0.2, 0)),
    Part.ArcOfCircle(Part.Circle(V(0, 0, 0), V(0, 0, 1), 3.1), math.radians(108), math.radians(184)),
], False)
sketch5.addConstraint([
    Sketcher.Constraint("Coincident", 0, 1, 1, 1),
    Sketcher.Constraint("Coincident", 1, 2, 0, 2),
    Sketcher.Constraint("Coincident", 1, 3, -1, 1),
    Sketcher.Constraint("Radius", 1, 3.1),
    Sketcher.Constraint("Distance", 0, 3.8),
    Sketcher.Constraint("Angle", 0, Q("-123.75 deg")),
])
sketch5.setExpression("Constraints[3]", "Params.sketch5_radius")
sketch5.setExpression("Constraints[4]", "Params.sketch5_length")
pad5 = body.newObject("PartDesign::Pad", "Pad004")
pad5.Profile = sketch5
pad5.setExpression("Length", "Params.pad5_length")

# Sketch on an angled plane
sketch6 = body.newObject("Sketcher::SketchObject", "Sketch005")
sketch6.Placement = App.Placement(V(0, 0, 0), App.Rotation(V(0, 0, -1), V(0.555570233, 0.831469612, 0), V(0.831469612, -0.555570233, 0), "ZXY"))
sketch6.addGeometry(Part.Circle(V(-5.5, 0, 0), V(0, 0, 1), 1.6), False)
sketch6.addConstraint([
    Sketcher.Constraint("PointOnObject", 0, 3, -1),
    Sketcher.Constraint("Diameter", 0, 3.3),
    Sketcher.Constraint("DistanceX", 0, 3, -1, 1, 5.5),
])
sketch6.setExpression("Constraints[1]", "Params.sketch6_diameter")
pocket1 = body.newObject("PartDesign::Pocket", "Pocket")
pocket1.Profile = sketch6
pocket1.Type = "ThroughAll"

doc.recompute()
